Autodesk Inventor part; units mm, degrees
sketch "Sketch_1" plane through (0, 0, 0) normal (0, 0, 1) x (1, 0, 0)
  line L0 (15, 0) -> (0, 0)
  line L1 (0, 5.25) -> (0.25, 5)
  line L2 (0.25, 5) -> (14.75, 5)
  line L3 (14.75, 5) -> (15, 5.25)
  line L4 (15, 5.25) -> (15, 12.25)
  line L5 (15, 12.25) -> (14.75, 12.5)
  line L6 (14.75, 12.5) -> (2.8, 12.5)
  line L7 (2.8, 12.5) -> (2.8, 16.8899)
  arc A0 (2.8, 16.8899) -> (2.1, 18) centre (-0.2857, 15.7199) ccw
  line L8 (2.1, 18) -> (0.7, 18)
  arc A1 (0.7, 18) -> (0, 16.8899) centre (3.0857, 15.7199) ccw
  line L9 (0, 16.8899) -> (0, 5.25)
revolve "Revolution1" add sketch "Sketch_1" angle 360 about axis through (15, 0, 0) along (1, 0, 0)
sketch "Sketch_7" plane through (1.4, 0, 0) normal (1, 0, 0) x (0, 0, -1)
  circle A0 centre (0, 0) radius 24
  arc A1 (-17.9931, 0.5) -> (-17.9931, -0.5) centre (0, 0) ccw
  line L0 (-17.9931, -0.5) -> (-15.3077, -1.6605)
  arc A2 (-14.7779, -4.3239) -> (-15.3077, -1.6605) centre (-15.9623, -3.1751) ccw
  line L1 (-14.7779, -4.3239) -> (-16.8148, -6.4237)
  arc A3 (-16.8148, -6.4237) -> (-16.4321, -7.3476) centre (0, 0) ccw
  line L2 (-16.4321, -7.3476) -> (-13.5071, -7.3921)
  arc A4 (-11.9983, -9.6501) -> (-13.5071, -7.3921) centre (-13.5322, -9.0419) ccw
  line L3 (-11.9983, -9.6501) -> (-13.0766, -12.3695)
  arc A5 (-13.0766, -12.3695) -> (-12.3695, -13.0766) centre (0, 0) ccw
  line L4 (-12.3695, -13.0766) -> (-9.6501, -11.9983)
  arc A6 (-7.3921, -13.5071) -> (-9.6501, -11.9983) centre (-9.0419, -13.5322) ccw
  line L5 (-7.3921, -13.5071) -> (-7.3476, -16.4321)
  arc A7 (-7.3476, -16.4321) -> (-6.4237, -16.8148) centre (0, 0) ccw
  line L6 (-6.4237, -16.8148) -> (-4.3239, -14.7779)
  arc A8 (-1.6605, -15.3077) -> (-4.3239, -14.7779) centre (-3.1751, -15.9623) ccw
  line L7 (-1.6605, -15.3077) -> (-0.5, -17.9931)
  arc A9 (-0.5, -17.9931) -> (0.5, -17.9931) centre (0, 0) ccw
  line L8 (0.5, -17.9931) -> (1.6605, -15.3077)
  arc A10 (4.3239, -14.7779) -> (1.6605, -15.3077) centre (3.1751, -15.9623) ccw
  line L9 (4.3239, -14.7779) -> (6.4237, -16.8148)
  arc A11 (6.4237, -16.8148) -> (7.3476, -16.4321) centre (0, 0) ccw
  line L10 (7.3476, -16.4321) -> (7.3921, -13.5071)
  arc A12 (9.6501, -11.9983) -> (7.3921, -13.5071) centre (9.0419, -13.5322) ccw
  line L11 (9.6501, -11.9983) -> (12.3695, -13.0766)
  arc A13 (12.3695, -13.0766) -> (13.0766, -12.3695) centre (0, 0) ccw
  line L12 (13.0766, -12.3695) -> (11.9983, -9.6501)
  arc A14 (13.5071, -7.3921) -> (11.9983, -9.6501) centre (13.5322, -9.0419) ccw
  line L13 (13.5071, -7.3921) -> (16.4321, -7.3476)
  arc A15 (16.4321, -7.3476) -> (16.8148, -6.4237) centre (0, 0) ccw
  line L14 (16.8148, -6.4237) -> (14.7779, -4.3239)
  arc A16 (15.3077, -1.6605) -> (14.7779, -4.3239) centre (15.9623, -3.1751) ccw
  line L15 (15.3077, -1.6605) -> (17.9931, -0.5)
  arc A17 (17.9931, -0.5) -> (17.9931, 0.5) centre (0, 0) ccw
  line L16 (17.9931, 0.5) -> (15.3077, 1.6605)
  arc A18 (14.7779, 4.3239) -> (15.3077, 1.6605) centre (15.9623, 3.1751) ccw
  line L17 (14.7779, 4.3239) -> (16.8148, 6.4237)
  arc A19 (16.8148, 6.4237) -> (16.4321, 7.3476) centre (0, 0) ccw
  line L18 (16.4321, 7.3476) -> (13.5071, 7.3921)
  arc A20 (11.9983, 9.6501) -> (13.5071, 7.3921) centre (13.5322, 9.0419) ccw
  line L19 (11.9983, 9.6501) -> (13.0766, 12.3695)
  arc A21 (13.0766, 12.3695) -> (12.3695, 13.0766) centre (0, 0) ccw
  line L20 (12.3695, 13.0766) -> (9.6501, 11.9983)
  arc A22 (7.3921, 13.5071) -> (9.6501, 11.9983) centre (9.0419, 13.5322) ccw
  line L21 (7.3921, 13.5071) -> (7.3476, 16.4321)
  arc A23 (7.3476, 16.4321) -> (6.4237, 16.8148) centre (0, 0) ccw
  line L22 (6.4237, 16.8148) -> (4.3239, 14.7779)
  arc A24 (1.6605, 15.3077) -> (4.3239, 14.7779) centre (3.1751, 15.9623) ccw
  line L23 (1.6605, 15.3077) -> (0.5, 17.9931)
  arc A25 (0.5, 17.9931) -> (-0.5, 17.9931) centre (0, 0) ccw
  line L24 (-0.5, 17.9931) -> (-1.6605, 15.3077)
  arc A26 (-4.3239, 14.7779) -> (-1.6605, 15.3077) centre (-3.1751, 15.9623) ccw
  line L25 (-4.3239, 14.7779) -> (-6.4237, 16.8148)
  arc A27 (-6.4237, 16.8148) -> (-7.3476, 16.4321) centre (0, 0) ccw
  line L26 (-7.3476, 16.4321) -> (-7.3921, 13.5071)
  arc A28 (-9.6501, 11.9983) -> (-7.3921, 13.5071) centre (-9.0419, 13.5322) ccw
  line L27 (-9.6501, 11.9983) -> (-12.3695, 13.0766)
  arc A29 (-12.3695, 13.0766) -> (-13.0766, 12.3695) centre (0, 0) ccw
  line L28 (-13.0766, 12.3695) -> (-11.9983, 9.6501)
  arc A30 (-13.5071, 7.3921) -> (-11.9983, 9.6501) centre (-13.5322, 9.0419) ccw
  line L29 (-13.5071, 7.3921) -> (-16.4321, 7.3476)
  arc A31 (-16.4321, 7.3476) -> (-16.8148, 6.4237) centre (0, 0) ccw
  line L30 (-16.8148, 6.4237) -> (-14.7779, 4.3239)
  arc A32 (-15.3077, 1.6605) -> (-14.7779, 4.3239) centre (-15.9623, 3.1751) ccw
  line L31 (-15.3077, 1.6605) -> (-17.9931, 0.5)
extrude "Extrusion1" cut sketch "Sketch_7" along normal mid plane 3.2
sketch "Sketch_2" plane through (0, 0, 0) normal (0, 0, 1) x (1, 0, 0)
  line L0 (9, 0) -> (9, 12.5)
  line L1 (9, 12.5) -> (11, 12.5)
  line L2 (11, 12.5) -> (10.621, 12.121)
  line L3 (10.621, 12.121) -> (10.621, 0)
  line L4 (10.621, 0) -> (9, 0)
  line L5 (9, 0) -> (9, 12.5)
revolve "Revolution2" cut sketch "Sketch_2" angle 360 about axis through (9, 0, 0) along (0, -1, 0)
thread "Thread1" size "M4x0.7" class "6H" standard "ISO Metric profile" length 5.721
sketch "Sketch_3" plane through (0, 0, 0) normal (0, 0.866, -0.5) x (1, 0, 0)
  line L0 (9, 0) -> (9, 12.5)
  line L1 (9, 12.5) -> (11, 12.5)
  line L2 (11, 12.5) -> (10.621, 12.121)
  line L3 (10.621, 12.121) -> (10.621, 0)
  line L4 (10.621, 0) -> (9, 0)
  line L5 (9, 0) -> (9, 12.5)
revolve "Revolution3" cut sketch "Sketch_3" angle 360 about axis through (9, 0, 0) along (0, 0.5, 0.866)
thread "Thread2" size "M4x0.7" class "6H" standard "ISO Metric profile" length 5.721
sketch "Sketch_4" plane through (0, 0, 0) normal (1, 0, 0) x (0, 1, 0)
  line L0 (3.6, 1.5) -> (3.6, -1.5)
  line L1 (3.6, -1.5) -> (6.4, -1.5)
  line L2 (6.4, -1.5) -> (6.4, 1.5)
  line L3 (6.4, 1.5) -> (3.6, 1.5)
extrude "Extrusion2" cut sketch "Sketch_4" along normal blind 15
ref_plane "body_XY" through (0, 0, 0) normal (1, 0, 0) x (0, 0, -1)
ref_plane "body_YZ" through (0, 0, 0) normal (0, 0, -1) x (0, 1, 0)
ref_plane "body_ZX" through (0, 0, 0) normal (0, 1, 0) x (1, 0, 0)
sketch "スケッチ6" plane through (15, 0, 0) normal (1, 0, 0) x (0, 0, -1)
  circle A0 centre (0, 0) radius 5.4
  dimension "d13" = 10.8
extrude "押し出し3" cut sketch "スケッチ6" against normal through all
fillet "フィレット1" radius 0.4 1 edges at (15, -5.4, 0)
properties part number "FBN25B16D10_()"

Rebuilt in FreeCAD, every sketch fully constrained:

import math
import FreeCAD as App
import Part
import Sketcher
from FreeCAD import Vector
Q = App.Units.Quantity


def edges_at(feature, points):
    """Names of the edges that pass closest to the given points."""
    edges = feature.Shape.Edges
    near = lambda p: min(range(len(edges)), key=lambda i: edges[i].distToShape(Part.Vertex(*p))[0])
    return sorted({f"Edge{near(p) + 1}" for p in points})


def add_polygon(sketch, points):
    """Adds a closed chain of lines whose ends are joined by coincident constraints."""
    first, n = sketch.GeometryCount, len(points)
    for a, b in zip(points, points[1:] + points[:1]):
        sketch.addGeometry(Part.LineSegment(App.Vector(*a, 0), App.Vector(*b, 0)), False)
    for i in range(n):
        sketch.addConstraint(Sketcher.Constraint("Coincident", first + i, 2, first + (i + 1) % n, 1))

doc = App.newDocument("Part")
params = doc.addObject("Spreadsheet::Sheet", "Params")
for row, (alias, value) in enumerate([
    ("sketch1_radius", "3.3 mm"),
    ("sketch1_height", "7 mm"),
    ("sketch1_width", "14.5 mm"),
    ("sketch1_width2", "1.4 mm"),
    ("sketch1_width3", "11.95 mm"),
    ("revolution_angle", "360 deg"),
    ("sketch2_diameter", "48 mm"),
    ("sketch2_radius", "18 mm"),
    ("sketch2_radius2", "1.65 mm"),
    ("pocket1_length", "3.2 mm"),
    ("sketch3_width", "2 mm"),
    ("sketch3_height", "12.5 mm"),
    ("groove_angle", "360 deg"),
    ("sketch4_width", "2 mm"),
    ("sketch4_height", "12.5 mm"),
    ("groove2_angle", "360 deg"),
    ("sketch5_height", "3 mm"),
    ("sketch5_width", "2.8 mm"),
    ("pocket2_length", "15 mm"),
    ("sketch6_diameter", "10.8 mm"),
    ("fillet_radius", "0.4 mm"),
], start=1):
    params.set(f"A{row}", alias)
    params.set(f"B{row}", "=" + value)
    params.setAlias(f"B{row}", alias)

body = doc.addObject("PartDesign::Body", "Body")

# Sketch on XY plane
sketch1 = body.newObject("Sketcher::SketchObject", "Sketch")
sketch1.AttachmentSupport = (doc.getObject("XY_Plane"), [""])
sketch1.MapMode = "FlatFace"
sketch1.addGeometry(Part.LineSegment(Vector(0, 16.89, 0), Vector(0, 5.25, 0)), False)
sketch1.addGeometry(Part.LineSegment(Vector(0, 5.25, 0), Vector(0.25, 5, 0)), False)
sketch1.addGeometry(Part.LineSegment(Vector(0.25, 5, 0), Vector(14.75, 5, 0)), False)
sketch1.addGeometry(Part.LineSegment(Vector(14.75, 5, 0), Vector(15, 5.25, 0)), False)
sketch1.addGeometry(Part.LineSegment(Vector(15, 5.25, 0), Vector(15, 12.25, 0)), False)
sketch1.addGeometry(Part.LineSegment(Vector(15, 12.25, 0), Vector(14.75, 12.5, 0)), False)
sketch1.addGeometry(Part.LineSegment(Vector(14.75, 12.5, 0), Vector(2.8, 12.5, 0)), False)
sketch1.addGeometry(Part.LineSegment(Vector(2.8, 12.5, 0), Vector(2.8, 16.89, 0)), False)
sketch1.addGeometry(Part.ArcOfCircle(Part.Circle(Vector(-0.29, 15.72, 0), Vector(0, 0, 1), 3.3), math.radians(21), math.radians(44)), False)
sketch1.addGeometry(Part.LineSegment(Vector(2.1, 18, 0), Vector(0.7, 18, 0)), False)
sketch1.addGeometry(Part.ArcOfCircle(Part.Circle(Vector(3.09, 15.72, 0), Vector(0, 0, 1), 3.3), math.radians(136), math.radians(159)), False)
sketch1.addConstraint(Sketcher.Constraint("Coincident", 0, 2, 1, 1))
sketch1.addConstraint(Sketcher.Constraint("Coincident", 1, 2, 2, 1))
sketch1.addConstraint(Sketcher.Constraint("Coincident", 2, 2, 3, 1))
sketch1.addConstraint(Sketcher.Constraint("Coincident", 3, 2, 4, 1))
sketch1.addConstraint(Sketcher.Constraint("Coincident", 4, 2, 5, 1))
sketch1.addConstraint(Sketcher.Constraint("Coincident", 5, 2, 6, 1))
sketch1.addConstraint(Sketcher.Constraint("Coincident", 6, 2, 7, 1))
sketch1.addConstraint(Sketcher.Constraint("Coincident", 7, 2, 8, 1))
sketch1.addConstraint(Sketcher.Constraint("Coincident", 8, 2, 9, 1))
sketch1.addConstraint(Sketcher.Constraint("Coincident", 9, 2, 10, 1))
sketch1.addConstraint(Sketcher.Constraint("Coincident", 10, 2, 0, 1))
sketch1.addConstraint(Sketcher.Constraint("Vertical", 0))
sketch1.addConstraint(Sketcher.Constraint("Horizontal", 2))
sketch1.addConstraint(Sketcher.Constraint("Vertical", 4))
sketch1.addConstraint(Sketcher.Constraint("Horizontal", 6))
sketch1.addConstraint(Sketcher.Constraint("Vertical", 7))
sketch1.addConstraint(Sketcher.Constraint("Horizontal", 9))
sketch1.addConstraint(Sketcher.Constraint("Equal", 8, 10))
sketch1.addConstraint(Sketcher.Constraint("PointOnObject", 0, 2, -2))
sketch1.addConstraint(Sketcher.Constraint("Perpendicular", 1, 3))
sketch1.addConstraint(Sketcher.Constraint("Perpendicular", 3, 5))
sketch1.addConstraint(Sketcher.Constraint("Horizontal", 8, 3, 10, 3))
sketch1.addConstraint(Sketcher.Constraint("Horizontal", 0, 2, 3, 2))
sketch1.addConstraint(Sketcher.Constraint("Horizontal", 7, 2, 10, 2))
sketch1.addConstraint(Sketcher.Constraint("Vertical", 2, 2, 5, 2))
sketch1.addConstraint(Sketcher.Constraint("Equal", 1, 3))
sketch1.addConstraint(Sketcher.Constraint("Radius", 8, 3.3))
sketch1.addConstraint(Sketcher.Constraint("DistanceY", 4, 1, 4, 2, 7.0))
sketch1.addConstraint(Sketcher.Constraint("DistanceX", 2, 1, 2, 2, 14.5))
sketch1.addConstraint(Sketcher.Constraint("DistanceX", 9, 2, 9, 1, 1.4))
sketch1.addConstraint(Sketcher.Constraint("DistanceY", -1, 1, 1, 2, 5.0))
sketch1.addConstraint(Sketcher.Constraint("DistanceX", -1, 1, 3, 2, 15.0))
sketch1.addConstraint(Sketcher.Constraint("DistanceY", -1, 1, 8, 2, 18.0))
sketch1.addConstraint(Sketcher.Constraint("DistanceX", 6, 2, 6, 1, 11.95))
sketch1.addConstraint(Sketcher.Constraint("DistanceY", 0, 2, 0, 1, 11.64))
sketch1.setExpression("Constraints[26]", "Params.sketch1_radius")
sketch1.setExpression("Constraints[27]", "Params.sketch1_height")
sketch1.setExpression("Constraints[28]", "Params.sketch1_width")
sketch1.setExpression("Constraints[29]", "Params.sketch1_width2")
sketch1.setExpression("Constraints[33]", "Params.sketch1_width3")
revolution = body.newObject("PartDesign::Revolution", "Revolution")
revolution.Profile = sketch1
revolution.ReferenceAxis = (sketch1, ["H_Axis"])
revolution.setExpression("Angle", "Params.revolution_angle")

# Sketch on YZ plane
sketch2 = body.newObject("Sketcher::SketchObject", "Sketch001")
sketch2.AttachmentSupport = (doc.getObject("YZ_Plane"), [""])
sketch2.MapMode = "FlatFace"
sketch2.AttachmentOffset = App.Placement(Vector(0, 0, 1.4), App.Rotation())
sketch2.addGeometry(Part.Circle(Vector(0, 0, 0), Vector(0, 0, 1), 24), False)
sketch2.addGeometry(Part.ArcOfCircle(Part.Circle(Vector(0, 0, 0), Vector(0, 0, 1), 18.000046), math.radians(88.40825), math.radians(91.59175)), False)
sketch2.addGeometry(Part.LineSegment(Vector(0.5, 17.9931, 0), Vector(1.6605, 15.3077, 0)), False)
sketch2.addGeometry(Part.ArcOfCircle(Part.Circle(Vector(3.1751, 15.9623, 0), Vector(0, 0, 1), 1.650004), math.radians(-156.626322), math.radians(-45.874152)), False)
sketch2.addGeometry(Part.LineSegment(Vector(4.3239, 14.7779, 0), Vector(6.4237, 16.8148, 0)), False)
sketch2.addGeometry(Part.ArcOfCircle(Part.Circle(Vector(-0.004053, -0.009413, 0), Vector(0, 0, 1), 18.010279), math.radians(65.908686), math.radians(69.090457)), False)
sketch2.addGeometry(Part.LineSegment(Vector(7.3476, 16.4321, 0), Vector(7.3921, 13.5071, 0)), False)
sketch2.addGeometry(Part.ArcOfCircle(Part.Circle(Vector(9.0419, 13.5322, 0), Vector(0, 0, 1), 1.649991), math.radians(-179.128371), math.radians(-68.371395)), False)
sketch2.addGeometry(Part.LineSegment(Vector(9.6501, 11.9983, 0), Vector(12.3695, 13.0766, 0)), False)
sketch2.addGeometry(Part.ArcOfCircle(Part.Circle(Vector(0, 0, 0), Vector(0, 0, 1), 18.000055), math.radians(43.408266), math.radians(46.591734)), False)
sketch2.addGeometry(Part.LineSegment(Vector(13.0766, 12.3695, 0), Vector(11.9983, 9.6501, 0)), False)
sketch2.addGeometry(Part.ArcOfCircle(Part.Circle(Vector(13.5322, 9.0419, 0), Vector(0, 0, 1), 1.650078), math.radians(158.371395), math.radians(269.128371)), False)
sketch2.addGeometry(Part.LineSegment(Vector(13.5071, 7.3921, 0), Vector(16.4321, 7.3476, 0)), False)
sketch2.addGeometry(Part.ArcOfCircle(Part.Circle(Vector(0.009511, 0.003786, 0), Vector(0, 0, 1), 17.989804), math.radians(20.907731), math.radians(24.093125)), False)
sketch2.addGeometry(Part.LineSegment(Vector(16.8148, 6.4237, 0), Vector(14.7779, 4.3239, 0)), False)
sketch2.addGeometry(Part.ArcOfCircle(Part.Circle(Vector(15.9623, 3.1751, 0), Vector(0, 0, 1), 1.650014), math.radians(135.874152), math.radians(246.626322)), False)
sketch2.addGeometry(Part.LineSegment(Vector(15.3077, 1.6605, 0), Vector(17.9931, 0.5, 0)), False)
sketch2.addGeometry(Part.ArcOfCircle(Part.Circle(Vector(0, 0, 0), Vector(0, 0, 1), 18.000046), math.radians(-1.59175), math.radians(1.59175)), False)
sketch2.addGeometry(Part.LineSegment(Vector(17.9931, -0.5, 0), Vector(15.3077, -1.6605, 0)), False)
sketch2.addGeometry(Part.ArcOfCircle(Part.Circle(Vector(15.9623, -3.1751, 0), Vector(0, 0, 1), 1.650004), math.radians(113.373678), math.radians(224.125848)), False)
sketch2.addGeometry(Part.LineSegment(Vector(14.7779, -4.3239, 0), Vector(16.8148, -6.4237, 0)), False)
sketch2.addGeometry(Part.ArcOfCircle(Part.Circle(Vector(-0.009413, 0.004053, 0), Vector(0, 0, 1), 18.010279), math.radians(-24.091314), math.radians(-20.909543)), False)
sketch2.addGeometry(Part.LineSegment(Vector(16.4321, -7.3476, 0), Vector(13.5071, -7.3921, 0)), False)
sketch2.addGeometry(Part.ArcOfCircle(Part.Circle(Vector(13.5322, -9.0419, 0), Vector(0, 0, 1), 1.649991), math.radians(90.871629), math.radians(201.628605)), False)
sketch2.addGeometry(Part.LineSegment(Vector(11.9983, -9.6501, 0), Vector(13.0766, -12.3695, 0)), False)
sketch2.addGeometry(Part.ArcOfCircle(Part.Circle(Vector(0, 0, 0), Vector(0, 0, 1), 18.000055), math.radians(-46.591734), math.radians(-43.408266)), False)
sketch2.addGeometry(Part.LineSegment(Vector(12.3695, -13.0766, 0), Vector(9.6501, -11.9983, 0)), False)
sketch2.addGeometry(Part.ArcOfCircle(Part.Circle(Vector(9.0419, -13.5322, 0), Vector(0, 0, 1), 1.650078), math.radians(68.371395), math.radians(179.128371)), False)
sketch2.addGeometry(Part.LineSegment(Vector(7.3921, -13.5071, 0), Vector(7.3476, -16.4321, 0)), False)
sketch2.addGeometry(Part.ArcOfCircle(Part.Circle(Vector(0.003786, -0.009511, 0), Vector(0, 0, 1), 17.989804), math.radians(-69.092269), math.radians(-65.906875)), False)
sketch2.addGeometry(Part.LineSegment(Vector(6.4237, -16.8148, 0), Vector(4.3239, -14.7779, 0)), False)
sketch2.addGeometry(Part.ArcOfCircle(Part.Circle(Vector(3.1751, -15.9623, 0), Vector(0, 0, 1), 1.650014), math.radians(45.874152), math.radians(156.626322)), False)
sketch2.addGeometry(Part.LineSegment(Vector(1.6605, -15.3077, 0), Vector(0.5, -17.9931, 0)), False)
sketch2.addGeometry(Part.ArcOfCircle(Part.Circle(Vector(0, 0, 0), Vector(0, 0, 1), 18.000046), math.radians(-91.59175), math.radians(-88.40825)), False)
sketch2.addGeometry(Part.LineSegment(Vector(-0.5, -17.9931, 0), Vector(-1.6605, -15.3077, 0)), False)
sketch2.addGeometry(Part.ArcOfCircle(Part.Circle(Vector(-3.1751, -15.9623, 0), Vector(0, 0, 1), 1.650004), math.radians(23.373678), math.radians(134.125848)), False)
sketch2.addGeometry(Part.LineSegment(Vector(-4.3239, -14.7779, 0), Vector(-6.4237, -16.8148, 0)), False)
sketch2.addGeometry(Part.ArcOfCircle(Part.Circle(Vector(0.004053, 0.009413, 0), Vector(0, 0, 1), 18.010279), math.radians(-114.091314), math.radians(-110.909543)), False)
sketch2.addGeometry(Part.LineSegment(Vector(-7.3476, -16.4321, 0), Vector(-7.3921, -13.5071, 0)), False)
sketch2.addGeometry(Part.ArcOfCircle(Part.Circle(Vector(-9.0419, -13.5322, 0), Vector(0, 0, 1), 1.649991), math.radians(0.871629), math.radians(111.628605)), False)
sketch2.addGeometry(Part.LineSegment(Vector(-9.6501, -11.9983, 0), Vector(-12.3695, -13.0766, 0)), False)
sketch2.addGeometry(Part.ArcOfCircle(Part.Circle(Vector(0, 0, 0), Vector(0, 0, 1), 18.000055), math.radians(-136.591734), math.radians(-133.408266)), False)
sketch2.addGeometry(Part.LineSegment(Vector(-13.0766, -12.3695, 0), Vector(-11.9983, -9.6501, 0)), False)
sketch2.addGeometry(Part.ArcOfCircle(Part.Circle(Vector(-13.5322, -9.0419, 0), Vector(0, 0, 1), 1.650078), math.radians(-21.628605), math.radians(89.128371)), False)
sketch2.addGeometry(Part.LineSegment(Vector(-13.5071, -7.3921, 0), Vector(-16.4321, -7.3476, 0)), False)
sketch2.addGeometry(Part.ArcOfCircle(Part.Circle(Vector(-0.009511, -0.003786, 0), Vector(0, 0, 1), 17.989804), math.radians(-159.092269), math.radians(-155.906875)), False)
sketch2.addGeometry(Part.LineSegment(Vector(-16.8148, -6.4237, 0), Vector(-14.7779, -4.3239, 0)), False)
sketch2.addGeometry(Part.ArcOfCircle(Part.Circle(Vector(-15.9623, -3.1751, 0), Vector(0, 0, 1), 1.650014), math.radians(-44.125848), math.radians(66.626322)), False)
sketch2.addGeometry(Part.LineSegment(Vector(-15.3077, -1.6605, 0), Vector(-17.9931, -0.5, 0)), False)
sketch2.addGeometry(Part.ArcOfCircle(Part.Circle(Vector(0, 0, 0), Vector(0, 0, 1), 18.000046), math.radians(178.40825), math.radians(181.59175)), False)
sketch2.addGeometry(Part.LineSegment(Vector(-17.9931, 0.5, 0), Vector(-15.3077, 1.6605, 0)), False)
sketch2.addGeometry(Part.ArcOfCircle(Part.Circle(Vector(-15.9623, 3.1751, 0), Vector(0, 0, 1), 1.650004), math.radians(-66.626322), math.radians(44.125848)), False)
sketch2.addGeometry(Part.LineSegment(Vector(-14.7779, 4.3239, 0), Vector(-16.8148, 6.4237, 0)), False)
sketch2.addGeometry(Part.ArcOfCircle(Part.Circle(Vector(0.009413, -0.004053, 0), Vector(0, 0, 1), 18.010279), math.radians(155.908686), math.radians(159.090457)), False)
sketch2.addGeometry(Part.LineSegment(Vector(-16.4321, 7.3476, 0), Vector(-13.5071, 7.3921, 0)), False)
sketch2.addGeometry(Part.ArcOfCircle(Part.Circle(Vector(-13.5322, 9.0419, 0), Vector(0, 0, 1), 1.649991), math.radians(-89.128371), math.radians(21.628605)), False)
sketch2.addGeometry(Part.LineSegment(Vector(-11.9983, 9.6501, 0), Vector(-13.0766, 12.3695, 0)), False)
sketch2.addGeometry(Part.ArcOfCircle(Part.Circle(Vector(0, 0, 0), Vector(0, 0, 1), 18.000055), math.radians(133.408266), math.radians(136.591734)), False)
sketch2.addGeometry(Part.LineSegment(Vector(-12.3695, 13.0766, 0), Vector(-9.6501, 11.9983, 0)), False)
sketch2.addGeometry(Part.ArcOfCircle(Part.Circle(Vector(-9.0419, 13.5322, 0), Vector(0, 0, 1), 1.650078), math.radians(-111.628605), math.radians(-0.871629)), False)
sketch2.addGeometry(Part.LineSegment(Vector(-7.3921, 13.5071, 0), Vector(-7.3476, 16.4321, 0)), False)
sketch2.addGeometry(Part.ArcOfCircle(Part.Circle(Vector(-0.003786, 0.009511, 0), Vector(0, 0, 1), 17.989804), math.radians(110.907731), math.radians(114.093125)), False)
sketch2.addGeometry(Part.LineSegment(Vector(-6.4237, 16.8148, 0), Vector(-4.3239, 14.7779, 0)), False)
sketch2.addGeometry(Part.ArcOfCircle(Part.Circle(Vector(-3.1751, 15.9623, 0), Vector(0, 0, 1), 1.650014), math.radians(-134.125848), math.radians(-23.373678)), False)
sketch2.addGeometry(Part.LineSegment(Vector(-1.6605, 15.3077, 0), Vector(-0.5, 17.9931, 0)), False)
sketch2.addConstraint(Sketcher.Constraint("Coincident", 1, 1, 2, 1))
sketch2.addConstraint(Sketcher.Constraint("Tangent", 2, 2, 3, 1))
sketch2.addConstraint(Sketcher.Constraint("Tangent", 3, 2, 4, 1))
sketch2.addConstraint(Sketcher.Constraint("Coincident", 4, 2, 5, 2))
sketch2.addConstraint(Sketcher.Constraint("Coincident", 5, 1, 6, 1))
sketch2.addConstraint(Sketcher.Constraint("Tangent", 6, 2, 7, 1))
sketch2.addConstraint(Sketcher.Constraint("Tangent", 7, 2, 8, 1))
sketch2.addConstraint(Sketcher.Constraint("Coincident", 8, 2, 9, 2))
sketch2.addConstraint(Sketcher.Constraint("Coincident", 9, 1, 10, 1))
sketch2.addConstraint(Sketcher.Constraint("Tangent", 10, 2, 11, 1))
sketch2.addConstraint(Sketcher.Constraint("Tangent", 11, 2, 12, 1))
sketch2.addConstraint(Sketcher.Constraint("Coincident", 12, 2, 13, 2))
sketch2.addConstraint(Sketcher.Constraint("Coincident", 13, 1, 14, 1))
sketch2.addConstraint(Sketcher.Constraint("Tangent", 14, 2, 15, 1))
sketch2.addConstraint(Sketcher.Constraint("Tangent", 15, 2, 16, 1))
sketch2.addConstraint(Sketcher.Constraint("Coincident", 16, 2, 17, 2))
sketch2.addConstraint(Sketcher.Constraint("Coincident", 17, 1, 18, 1))
sketch2.addConstraint(Sketcher.Constraint("Tangent", 18, 2, 19, 1))
sketch2.addConstraint(Sketcher.Constraint("Tangent", 19, 2, 20, 1))
sketch2.addConstraint(Sketcher.Constraint("Coincident", 20, 2, 21, 2))
sketch2.addConstraint(Sketcher.Constraint("Coincident", 21, 1, 22, 1))
sketch2.addConstraint(Sketcher.Constraint("Tangent", 22, 2, 23, 1))
sketch2.addConstraint(Sketcher.Constraint("Tangent", 23, 2, 24, 1))
sketch2.addConstraint(Sketcher.Constraint("Coincident", 24, 2, 25, 2))
sketch2.addConstraint(Sketcher.Constraint("Coincident", 25, 1, 26, 1))
sketch2.addConstraint(Sketcher.Constraint("Tangent", 26, 2, 27, 1))
sketch2.addConstraint(Sketcher.Constraint("Tangent", 27, 2, 28, 1))
sketch2.addConstraint(Sketcher.Constraint("Coincident", 28, 2, 29, 2))
sketch2.addConstraint(Sketcher.Constraint("Coincident", 29, 1, 30, 1))
sketch2.addConstraint(Sketcher.Constraint("Tangent", 30, 2, 31, 1))
sketch2.addConstraint(Sketcher.Constraint("Tangent", 31, 2, 32, 1))
sketch2.addConstraint(Sketcher.Constraint("Coincident", 32, 2, 33, 2))
sketch2.addConstraint(Sketcher.Constraint("Coincident", 33, 1, 34, 1))
sketch2.addConstraint(Sketcher.Constraint("Tangent", 34, 2, 35, 1))
sketch2.addConstraint(Sketcher.Constraint("Tangent", 35, 2, 36, 1))
sketch2.addConstraint(Sketcher.Constraint("Coincident", 36, 2, 37, 2))
sketch2.addConstraint(Sketcher.Constraint("Coincident", 37, 1, 38, 1))
sketch2.addConstraint(Sketcher.Constraint("Tangent", 38, 2, 39, 1))
sketch2.addConstraint(Sketcher.Constraint("Tangent", 39, 2, 40, 1))
sketch2.addConstraint(Sketcher.Constraint("Coincident", 40, 2, 41, 2))
sketch2.addConstraint(Sketcher.Constraint("Coincident", 41, 1, 42, 1))
sketch2.addConstraint(Sketcher.Constraint("Tangent", 42, 2, 43, 1))
sketch2.addConstraint(Sketcher.Constraint("Tangent", 43, 2, 44, 1))
sketch2.addConstraint(Sketcher.Constraint("Coincident", 44, 2, 45, 2))
sketch2.addConstraint(Sketcher.Constraint("Coincident", 45, 1, 46, 1))
sketch2.addConstraint(Sketcher.Constraint("Tangent", 46, 2, 47, 1))
sketch2.addConstraint(Sketcher.Constraint("Tangent", 47, 2, 48, 1))
sketch2.addConstraint(Sketcher.Constraint("Coincident", 48, 2, 49, 2))
sketch2.addConstraint(Sketcher.Constraint("Coincident", 49, 1, 50, 1))
sketch2.addConstraint(Sketcher.Constraint("Tangent", 50, 2, 51, 1))
sketch2.addConstraint(Sketcher.Constraint("Tangent", 51, 2, 52, 1))
sketch2.addConstraint(Sketcher.Constraint("Coincident", 52, 2, 53, 2))
sketch2.addConstraint(Sketcher.Constraint("Coincident", 53, 1, 54, 1))
sketch2.addConstraint(Sketcher.Constraint("Tangent", 54, 2, 55, 1))
sketch2.addConstraint(Sketcher.Constraint("Tangent", 55, 2, 56, 1))
sketch2.addConstraint(Sketcher.Constraint("Coincident", 56, 2, 57, 2))
sketch2.addConstraint(Sketcher.Constraint("Coincident", 57, 1, 58, 1))
sketch2.addConstraint(Sketcher.Constraint("Tangent", 58, 2, 59, 1))
sketch2.addConstraint(Sketcher.Constraint("Tangent", 59, 2, 60, 1))
sketch2.addConstraint(Sketcher.Constraint("Coincident", 60, 2, 61, 2))
sketch2.addConstraint(Sketcher.Constraint("Coincident", 61, 1, 62, 1))
sketch2.addConstraint(Sketcher.Constraint("Tangent", 62, 2, 63, 1))
sketch2.addConstraint(Sketcher.Constraint("Tangent", 63, 2, 64, 1))
sketch2.addConstraint(Sketcher.Constraint("Coincident", 64, 2, 1, 2))
sketch2.addConstraint(Sketcher.Constraint("Coincident", 0, 3, -1, 1))
sketch2.addConstraint(Sketcher.Constraint("Coincident", 1, 3, -1, 1))
sketch2.addConstraint(Sketcher.Constraint("Coincident", 9, 3, -1, 1))
sketch2.addConstraint(Sketcher.Constraint("Coincident", 17, 3, -1, 1))
sketch2.addConstraint(Sketcher.Constraint("Coincident", 25, 3, -1, 1))
sketch2.addConstraint(Sketcher.Constraint("Coincident", 33, 3, -1, 1))
sketch2.addConstraint(Sketcher.Constraint("Coincident", 41, 3, -1, 1))
sketch2.addConstraint(Sketcher.Constraint("Coincident", 49, 3, -1, 1))
sketch2.addConstraint(Sketcher.Constraint("Coincident", 57, 3, -1, 1))
sketch2.addConstraint(Sketcher.Constraint("Equal", 3, 7))
sketch2.addConstraint(Sketcher.Constraint("Equal", 1, 9))
sketch2.addConstraint(Sketcher.Constraint("Equal", 7, 11))
sketch2.addConstraint(Sketcher.Constraint("Equal", 11, 15))
sketch2.addConstraint(Sketcher.Constraint("Equal", 9, 17))
sketch2.addConstraint(Sketcher.Constraint("Equal", 15, 19))
sketch2.addConstraint(Sketcher.Constraint("Equal", 5, 21))
sketch2.addConstraint(Sketcher.Constraint("Equal", 19, 23))
sketch2.addConstraint(Sketcher.Constraint("Equal", 17, 25))
sketch2.addConstraint(Sketcher.Constraint("Equal", 23, 27))
sketch2.addConstraint(Sketcher.Constraint("Equal", 13, 29))
sketch2.addConstraint(Sketcher.Constraint("Equal", 27, 31))
sketch2.addConstraint(Sketcher.Constraint("Equal", 25, 33))
sketch2.addConstraint(Sketcher.Constraint("Equal", 31, 35))
sketch2.addConstraint(Sketcher.Constraint("Equal", 21, 37))
sketch2.addConstraint(Sketcher.Constraint("Equal", 35, 39))
sketch2.addConstraint(Sketcher.Constraint("Equal", 33, 41))
sketch2.addConstraint(Sketcher.Constraint("Equal", 39, 43))
sketch2.addConstraint(Sketcher.Constraint("Equal", 29, 45))
sketch2.addConstraint(Sketcher.Constraint("Equal", 43, 47))
sketch2.addConstraint(Sketcher.Constraint("Equal", 41, 49))
sketch2.addConstraint(Sketcher.Constraint("Equal", 47, 51))
sketch2.addConstraint(Sketcher.Constraint("Equal", 37, 53))
sketch2.addConstraint(Sketcher.Constraint("Equal", 51, 55))
sketch2.addConstraint(Sketcher.Constraint("Equal", 49, 57))
sketch2.addConstraint(Sketcher.Constraint("Equal", 55, 59))
sketch2.addConstraint(Sketcher.Constraint("Equal", 45, 61))
sketch2.addConstraint(Sketcher.Constraint("Equal", 59, 63))
sketch2.addConstraint(Sketcher.Constraint("Symmetric", 3, 3, 35, 3, -1, 1))
sketch2.addConstraint(Sketcher.Constraint("Symmetric", 5, 3, 37, 3, -1, 1))
sketch2.addConstraint(Sketcher.Constraint("Symmetric", 7, 3, 39, 3, -1, 1))
sketch2.addConstraint(Sketcher.Constraint("Symmetric", 11, 3, 43, 3, -1, 1))
sketch2.addConstraint(Sketcher.Constraint("Symmetric", 13, 3, 45, 3, -1, 1))
sketch2.addConstraint(Sketcher.Constraint("Symmetric", 15, 3, 47, 3, -1, 1))
sketch2.addConstraint(Sketcher.Constraint("Symmetric", 19, 3, 51, 3, -1, 1))
sketch2.addConstraint(Sketcher.Constraint("Symmetric", 21, 3, 53, 3, -1, 1))
sketch2.addConstraint(Sketcher.Constraint("Symmetric", 23, 3, 55, 3, -1, 1))
sketch2.addConstraint(Sketcher.Constraint("Symmetric", 27, 3, 59, 3, -1, 1))
sketch2.addConstraint(Sketcher.Constraint("Symmetric", 29, 3, 61, 3, -1, 1))
sketch2.addConstraint(Sketcher.Constraint("Symmetric", 31, 3, 63, 3, -1, 1))
sketch2.addConstraint(Sketcher.Constraint("Symmetric", 13, 3, 21, 3, -2))
sketch2.addConstraint(Sketcher.Constraint("Symmetric", 5, 3, 29, 3, -2))
sketch2.addConstraint(Sketcher.Constraint("Symmetric", 31, 3, 35, 3, -2))
sketch2.addConstraint(Sketcher.Constraint("Symmetric", 27, 3, 39, 3, -2))
sketch2.addConstraint(Sketcher.Constraint("Symmetric", 23, 3, 43, 3, -2))
sketch2.addConstraint(Sketcher.Constraint("Symmetric", 19, 3, 47, 3, -2))
sketch2.addConstraint(Sketcher.Constraint("Symmetric", 29, 1, 36, 2, -2))
sketch2.addConstraint(Sketcher.Constraint("Symmetric", 28, 2, 37, 1, -2))
sketch2.addConstraint(Sketcher.Constraint("Symmetric", 21, 1, 44, 2, -2))
sketch2.addConstraint(Sketcher.Constraint("Symmetric", 20, 2, 45, 1, -2))
sketch2.addConstraint(Sketcher.Constraint("Perpendicular", 2, 18))
sketch2.addConstraint(Sketcher.Constraint("Perpendicular", 4, 20))
sketch2.addConstraint(Sketcher.Constraint("Perpendicular", 6, 22))
sketch2.addConstraint(Sketcher.Constraint("Perpendicular", 8, 24))
sketch2.addConstraint(Sketcher.Constraint("Perpendicular", 10, 26))
sketch2.addConstraint(Sketcher.Constraint("Perpendicular", 12, 28))
sketch2.addConstraint(Sketcher.Constraint("Perpendicular", 14, 30))
sketch2.addConstraint(Sketcher.Constraint("Perpendicular", 16, 32))
sketch2.addConstraint(Sketcher.Constraint("Perpendicular", 18, 34))
sketch2.addConstraint(Sketcher.Constraint("Perpendicular", 20, 36))
sketch2.addConstraint(Sketcher.Constraint("Perpendicular", 22, 38))
sketch2.addConstraint(Sketcher.Constraint("Perpendicular", 24, 40))
sketch2.addConstraint(Sketcher.Constraint("Perpendicular", 26, 42))
sketch2.addConstraint(Sketcher.Constraint("Perpendicular", 32, 48))
sketch2.addConstraint(Sketcher.Constraint("Perpendicular", 34, 50))
sketch2.addConstraint(Sketcher.Constraint("Perpendicular", 36, 52))
sketch2.addConstraint(Sketcher.Constraint("Perpendicular", 38, 54))
sketch2.addConstraint(Sketcher.Constraint("Perpendicular", 40, 56))
sketch2.addConstraint(Sketcher.Constraint("Perpendicular", 42, 58))
sketch2.addConstraint(Sketcher.Constraint("Perpendicular", 44, 60))
sketch2.addConstraint(Sketcher.Constraint("Perpendicular", 46, 62))
sketch2.addConstraint(Sketcher.Constraint("Perpendicular", 48, 64))
sketch2.addConstraint(Sketcher.Constraint("Horizontal", 32, 2, 33, 1))
sketch2.addConstraint(Sketcher.Constraint("Horizontal", 26, 2, 39, 2))
sketch2.addConstraint(Sketcher.Constraint("Equal", 2, 4))
sketch2.addConstraint(Sketcher.Constraint("Equal", 4, 6))
sketch2.addConstraint(Sketcher.Constraint("Equal", 6, 8))
sketch2.addConstraint(Sketcher.Constraint("Equal", 8, 10))
sketch2.addConstraint(Sketcher.Constraint("Equal", 10, 12))
sketch2.addConstraint(Sketcher.Constraint("Equal", 12, 14))
sketch2.addConstraint(Sketcher.Constraint("Equal", 14, 16))
sketch2.addConstraint(Sketcher.Constraint("Diameter", 0, 48.0))
sketch2.addConstraint(Sketcher.Constraint("Radius", 1, 18.0))
sketch2.addConstraint(Sketcher.Constraint("Radius", 3, 1.65))
sketch2.addConstraint(Sketcher.Constraint("DistanceX", -1, 1, 1, 1, 0.5))
sketch2.addConstraint(Sketcher.Constraint("Angle", 4, Q("44.1289 deg")))
sketch2.addConstraint(Sketcher.Constraint("Angle", 8, Q("21.6294 deg")))
sketch2.addConstraint(Sketcher.Constraint("Radius", 5, 18.0103))
sketch2.addConstraint(Sketcher.Constraint("Radius", 13, 17.9898))
sketch2.addConstraint(Sketcher.Constraint("DistanceX", -1, 1, 7, 2, 9.65))
sketch2.addConstraint(Sketcher.Constraint("DistanceX", -1, 1, 3, 3, 3.175))
sketch2.setExpression("Constraints[154]", "Params.sketch2_diameter")
sketch2.setExpression("Constraints[155]", "Params.sketch2_radius")
sketch2.setExpression("Constraints[156]", "Params.sketch2_radius2")
pocket1 = body.newObject("PartDesign::Pocket", "Pocket")
pocket1.Profile = sketch2
pocket1.setExpression("Length", "Params.pocket1_length")
pocket1.Midplane = True

# Sketch on XY plane
sketch3 = body.newObject("Sketcher::SketchObject", "Sketch002")
sketch3.AttachmentSupport = (doc.getObject("XY_Plane"), [""])
sketch3.MapMode = "FlatFace"
add_polygon(sketch3, [(9, 12.5), (9, 0), (10.6, 0), (10.6, 12.1), (11, 12.5)])  # lines 0-4
sketch3.addGeometry(Part.LineSegment(Vector(9, 12.5, 0), Vector(9, 0, 0)), True)  # axis
sketch3.addConstraint(Sketcher.Constraint("Vertical", 0))
sketch3.addConstraint(Sketcher.Constraint("Horizontal", 1))
sketch3.addConstraint(Sketcher.Constraint("Vertical", 2))
sketch3.addConstraint(Sketcher.Constraint("Horizontal", 4))
sketch3.addConstraint(Sketcher.Constraint("Vertical", 5))
sketch3.addConstraint(Sketcher.Constraint("Coincident", 5, 1, 4, 2))
sketch3.addConstraint(Sketcher.Constraint("PointOnObject", 0, 2, -1))
sketch3.addConstraint(Sketcher.Constraint("PointOnObject", 5, 2, -1))
sketch3.addConstraint(Sketcher.Constraint("DistanceX", 4, 2, 4, 1, 2.0))
sketch3.addConstraint(Sketcher.Constraint("Angle", 3, Q("45 deg")))
sketch3.addConstraint(Sketcher.Constraint("DistanceY", 0, 2, 0, 1, 12.5))
sketch3.addConstraint(Sketcher.Constraint("DistanceX", -1, 1, 0, 2, 9.0))
sketch3.addConstraint(Sketcher.Constraint("DistanceX", 1, 1, 1, 2, 1.621))
sketch3.setExpression("Constraints[13]", "Params.sketch3_width")
sketch3.setExpression("Constraints[15]", "Params.sketch3_height")
groove = body.newObject("PartDesign::Groove", "Groove")
groove.Profile = sketch3
groove.ReferenceAxis = (sketch3, ["Axis0"])
groove.setExpression("Angle", "Params.groove_angle")

# Sketch on an angled plane
sketch4 = body.newObject("Sketcher::SketchObject", "Sketch003")
sketch4.Placement = App.Placement(Vector(0, 0, 0), App.Rotation(Vector(1, 0, 0), Vector(0, -0.5, -0.866025404), Vector(0, 0.866025404, -0.5), "ZXY"))
add_polygon(sketch4, [(9, 12.5), (9, 0), (10.6, 0), (10.6, 12.1), (11, 12.5)])  # lines 0-4
sketch4.addGeometry(Part.LineSegment(Vector(9, 12.5, 0), Vector(9, 0, 0)), True)  # axis
sketch4.addConstraint(Sketcher.Constraint("Vertical", 0))
sketch4.addConstraint(Sketcher.Constraint("Horizontal", 1))
sketch4.addConstraint(Sketcher.Constraint("Vertical", 2))
sketch4.addConstraint(Sketcher.Constraint("Horizontal", 4))
sketch4.addConstraint(Sketcher.Constraint("Vertical", 5))
sketch4.addConstraint(Sketcher.Constraint("Coincident", 5, 1, 4, 2))
sketch4.addConstraint(Sketcher.Constraint("PointOnObject", 0, 2, -1))
sketch4.addConstraint(Sketcher.Constraint("PointOnObject", 5, 2, -1))
sketch4.addConstraint(Sketcher.Constraint("DistanceX", 4, 2, 4, 1, 2.0))
sketch4.addConstraint(Sketcher.Constraint("Angle", 3, Q("45 deg")))
sketch4.addConstraint(Sketcher.Constraint("DistanceY", 0, 2, 0, 1, 12.5))
sketch4.addConstraint(Sketcher.Constraint("DistanceX", -1, 1, 0, 2, 9.0))
sketch4.addConstraint(Sketcher.Constraint("DistanceX", 1, 1, 1, 2, 1.621))
sketch4.setExpression("Constraints[13]", "Params.sketch4_width")
sketch4.setExpression("Constraints[15]", "Params.sketch4_height")
groove2 = body.newObject("PartDesign::Groove", "Groove001")
groove2.Profile = sketch4
groove2.ReferenceAxis = (sketch4, ["Axis0"])
groove2.setExpression("Angle", "Params.groove2_angle")

# Sketch on YZ plane
sketch5 = body.newObject("Sketcher::SketchObject", "Sketch004")
sketch5.AttachmentSupport = (doc.getObject("YZ_Plane"), [""])
sketch5.MapMode = "FlatFace"
add_polygon(sketch5, [(6.4, 1.5), (3.6, 1.5), (3.6, -1.5), (6.4, -1.5)])  # lines 0-3
sketch5.addConstraint(Sketcher.Constraint("Horizontal", 0))
sketch5.addConstraint(Sketcher.Constraint("Vertical", 1))
sketch5.addConstraint(Sketcher.Constraint("Horizontal", 2))
sketch5.addConstraint(Sketcher.Constraint("Vertical", 3))
sketch5.addConstraint(Sketcher.Constraint("DistanceY", 1, 2, 1, 1, 3.0))
sketch5.addConstraint(Sketcher.Constraint("DistanceX", 0, 2, 0, 1, 2.8))
sketch5.addConstraint(Sketcher.Constraint("DistanceX", -1, 1, 0, 2, 3.6))
sketch5.addConstraint(Sketcher.Constraint("DistanceY", -1, 1, 0, 2, 1.5))
sketch5.setExpression("Constraints[8]", "Params.sketch5_height")
sketch5.setExpression("Constraints[9]", "Params.sketch5_width")
pocket2 = body.newObject("PartDesign::Pocket", "Pocket001")
pocket2.Profile = sketch5
pocket2.setExpression("Length", "Params.pocket2_length")
pocket2.Reversed = True

# Sketch on YZ plane
sketch6 = body.newObject("Sketcher::SketchObject", "Sketch005")
sketch6.AttachmentSupport = (doc.getObject("YZ_Plane"), [""])
sketch6.MapMode = "FlatFace"
sketch6.AttachmentOffset = App.Placement(Vector(0, 0, 15), App.Rotation())
sketch6.addGeometry(Part.Circle(Vector(0, 0, 0), Vector(0, 0, 1), 5), False)
sketch6.addConstraint(Sketcher.Constraint("Coincident", 0, 3, -1, 1))
sketch6.addConstraint(Sketcher.Constraint("Diameter", 0, 10.8))
sketch6.setExpression("Constraints[1]", "Params.sketch6_diameter")
pocket3 = body.newObject("PartDesign::Pocket", "Pocket002")
pocket3.Profile = sketch6
pocket3.Type = "ThroughAll"
doc.recompute()

fillet = body.newObject("PartDesign::Fillet", "Fillet")
fillet.Base = (pocket3, edges_at(pocket3, [(15, -5.4, 0)]))
fillet.setExpression("Radius", "Params.fillet_radius")

doc.recompute()
